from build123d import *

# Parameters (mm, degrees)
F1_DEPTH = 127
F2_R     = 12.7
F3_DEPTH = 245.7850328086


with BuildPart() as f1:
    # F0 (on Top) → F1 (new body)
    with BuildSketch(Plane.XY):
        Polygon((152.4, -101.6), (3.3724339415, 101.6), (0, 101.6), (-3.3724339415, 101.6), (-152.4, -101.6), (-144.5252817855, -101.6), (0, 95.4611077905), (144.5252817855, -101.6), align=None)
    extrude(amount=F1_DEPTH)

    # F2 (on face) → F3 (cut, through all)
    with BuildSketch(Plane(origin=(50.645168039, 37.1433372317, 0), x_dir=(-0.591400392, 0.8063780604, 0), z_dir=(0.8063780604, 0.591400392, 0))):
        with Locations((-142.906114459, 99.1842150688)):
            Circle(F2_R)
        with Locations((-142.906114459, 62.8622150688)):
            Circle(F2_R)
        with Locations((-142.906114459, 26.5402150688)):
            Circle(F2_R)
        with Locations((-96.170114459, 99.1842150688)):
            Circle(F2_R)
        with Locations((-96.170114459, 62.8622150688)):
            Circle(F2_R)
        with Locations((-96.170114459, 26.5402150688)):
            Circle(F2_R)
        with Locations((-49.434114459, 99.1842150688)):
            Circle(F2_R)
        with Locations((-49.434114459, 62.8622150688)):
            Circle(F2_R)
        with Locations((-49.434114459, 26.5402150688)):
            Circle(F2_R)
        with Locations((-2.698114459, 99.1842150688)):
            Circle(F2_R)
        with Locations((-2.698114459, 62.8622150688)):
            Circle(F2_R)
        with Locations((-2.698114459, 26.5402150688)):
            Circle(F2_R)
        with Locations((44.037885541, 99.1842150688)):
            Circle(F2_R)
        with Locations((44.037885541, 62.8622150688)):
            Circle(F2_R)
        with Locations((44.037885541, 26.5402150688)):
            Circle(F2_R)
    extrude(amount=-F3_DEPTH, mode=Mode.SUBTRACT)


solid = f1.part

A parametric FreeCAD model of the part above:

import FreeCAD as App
import Part
import Sketcher

V = App.Vector
Q = App.Units.Quantity

doc = App.newDocument("Part")
body = doc.addObject("PartDesign::Body", "Body")

# Sketch on XY plane
sketch1 = body.newObject("Sketcher::SketchObject", "Sketch")
sketch1.AttachmentSupport = (doc.getObject("XY_Plane"), [""])
sketch1.MapMode = "FlatFace"
sketch1.addGeometry(Part.LineSegment(V(152, -102, 0), V(3, 102, 0)), False)
sketch1.addGeometry(Part.LineSegment(V(3, 102, 0), V(-3, 102, 0)), False)
sketch1.addGeometry(Part.LineSegment(V(-3, 102, 0), V(-152, -102, 0)), False)
sketch1.addGeometry(Part.LineSegment(V(-152, -102, 0), V(-145, -102, 0)), False)
sketch1.addGeometry(Part.LineSegment(V(-145, -102, 0), V(0, 95, 0)), False)
sketch1.addGeometry(Part.LineSegment(V(0, 95, 0), V(145, -102, 0)), False)
sketch1.addGeometry(Part.LineSegment(V(145, -102, 0), V(152, -102, 0)), False)
sketch1.addConstraint(Sketcher.Constraint("Coincident", 0, 2, 1, 1))
sketch1.addConstraint(Sketcher.Constraint("Coincident", 1, 2, 2, 1))
sketch1.addConstraint(Sketcher.Constraint("Coincident", 2, 2, 3, 1))
sketch1.addConstraint(Sketcher.Constraint("Coincident", 3, 2, 4, 1))
sketch1.addConstraint(Sketcher.Constraint("Coincident", 4, 2, 5, 1))
sketch1.addConstraint(Sketcher.Constraint("Coincident", 5, 2, 6, 1))
sketch1.addConstraint(Sketcher.Constraint("Coincident", 6, 2, 0, 1))
sketch1.addConstraint(Sketcher.Constraint("Horizontal", 1))
sketch1.addConstraint(Sketcher.Constraint("Horizontal", 3))
sketch1.addConstraint(Sketcher.Constraint("Horizontal", 6))
sketch1.addConstraint(Sketcher.Constraint("Symmetric", 3, 2, 5, 2, -2))
sketch1.addConstraint(Sketcher.Constraint("PointOnObject", 4, 2, -2))
sketch1.addConstraint(Sketcher.Constraint("Parallel", 2, 4))
sketch1.addConstraint(Sketcher.Constraint("Parallel", 0, 5))
sketch1.addConstraint(Sketcher.Constraint("Equal", 3, 6))
sketch1.addConstraint(Sketcher.Constraint("DistanceY", -1, 1, 0, 2, Q("4 in")))
sketch1.addConstraint(Sketcher.Constraint("DistanceX", 2, 2, -1, 1, Q("6 in")))
sketch1.addConstraint(Sketcher.Constraint("DistanceY", 2, 2, -1, 1, Q("4 in")))
sketch1.addConstraint(Sketcher.Constraint("DistanceX", 3, 1, 3, 2, Q("7.874718 mm")))
sketch1.addConstraint(Sketcher.Constraint("DistanceX", 1, 2, 1, 1, Q("6.744868 mm")))
pad1 = body.newObject("PartDesign::Pad", "Pad")
pad1.Profile = sketch1
pad1.Length = Q("5 in")

# Sketch on an angled plane
sketch2 = body.newObject("Sketcher::SketchObject", "Sketch001")
sketch2.Placement = App.Placement(V(50.645168, 37.143337, 0), App.Rotation(V(-0.591400392, 0.80637806, 0), V(0, 0, 0.999999999), V(0.80637806, 0.591400392, 0), "ZXY"))
sketch2.addGeometry(Part.Circle(V(-143, 99, 0), V(0, 0, 1), 13), False)
sketch2.addGeometry(Part.Circle(V(-143, 63, 0), V(0, 0, 1), 13), False)
sketch2.addGeometry(Part.Circle(V(-143, 27, 0), V(0, 0, 1), 13), False)
sketch2.addGeometry(Part.Circle(V(-96, 99, 0), V(0, 0, 1), 13), False)
sketch2.addGeometry(Part.Circle(V(-96, 63, 0), V(0, 0, 1), 13), False)
sketch2.addGeometry(Part.Circle(V(-96, 27, 0), V(0, 0, 1), 13), False)
sketch2.addGeometry(Part.Circle(V(-49, 99, 0), V(0, 0, 1), 13), False)
sketch2.addGeometry(Part.Circle(V(-49, 63, 0), V(0, 0, 1), 13), False)
sketch2.addGeometry(Part.Circle(V(-49, 27, 0), V(0, 0, 1), 13), False)
sketch2.addGeometry(Part.Circle(V(-3, 99, 0), V(0, 0, 1), 13), False)
sketch2.addGeometry(Part.Circle(V(-3, 63, 0), V(0, 0, 1), 13), False)
sketch2.addGeometry(Part.Circle(V(-3, 27, 0), V(0, 0, 1), 13), False)
sketch2.addGeometry(Part.Circle(V(44, 99, 0), V(0, 0, 1), 13), False)
sketch2.addGeometry(Part.Circle(V(44, 63, 0), V(0, 0, 1), 13), False)
sketch2.addGeometry(Part.Circle(V(44, 27, 0), V(0, 0, 1), 13), False)
sketch2.addConstraint(Sketcher.Constraint("Equal", 0, 1))
sketch2.addConstraint(Sketcher.Constraint("Equal", 1, 2))
sketch2.addConstraint(Sketcher.Constraint("Equal", 2, 3))
sketch2.addConstraint(Sketcher.Constraint("Equal", 3, 4))
sketch2.addConstraint(Sketcher.Constraint("Equal", 4, 5))
sketch2.addConstraint(Sketcher.Constraint("Equal", 5, 6))
sketch2.addConstraint(Sketcher.Constraint("Equal", 6, 7))
sketch2.addConstraint(Sketcher.Constraint("Equal", 7, 8))
sketch2.addConstraint(Sketcher.Constraint("Equal", 8, 9))
sketch2.addConstraint(Sketcher.Constraint("Equal", 9, 10))
sketch2.addConstraint(Sketcher.Constraint("Equal", 10, 11))
sketch2.addConstraint(Sketcher.Constraint("Equal", 11, 12))
sketch2.addConstraint(Sketcher.Constraint("Equal", 12, 13))
sketch2.addConstraint(Sketcher.Constraint("Equal", 13, 14))
sketch2.addConstraint(Sketcher.Constraint("Horizontal", 0, 3, 3, 3))
sketch2.addConstraint(Sketcher.Constraint("Horizontal", 1, 3, 4, 3))
sketch2.addConstraint(Sketcher.Constraint("Horizontal", 2, 3, 5, 3))
sketch2.addConstraint(Sketcher.Constraint("Horizontal", 3, 3, 6, 3))
sketch2.addConstraint(Sketcher.Constraint("Horizontal", 4, 3, 7, 3))
sketch2.addConstraint(Sketcher.Constraint("Horizontal", 5, 3, 8, 3))
sketch2.addConstraint(Sketcher.Constraint("Horizontal", 6, 3, 9, 3))
sketch2.addConstraint(Sketcher.Constraint("Horizontal", 7, 3, 10, 3))
sketch2.addConstraint(Sketcher.Constraint("Horizontal", 8, 3, 11, 3))
sketch2.addConstraint(Sketcher.Constraint("Horizontal", 9, 3, 12, 3))
sketch2.addConstraint(Sketcher.Constraint("Horizontal", 10, 3, 13, 3))
sketch2.addConstraint(Sketcher.Constraint("Horizontal", 11, 3, 14, 3))
sketch2.addConstraint(Sketcher.Constraint("Vertical", 0, 3, 1, 3))
sketch2.addConstraint(Sketcher.Constraint("Vertical", 1, 3, 2, 3))
sketch2.addConstraint(Sketcher.Constraint("Vertical", 3, 3, 4, 3))
sketch2.addConstraint(Sketcher.Constraint("Vertical", 4, 3, 5, 3))
sketch2.addConstraint(Sketcher.Constraint("Vertical", 6, 3, 7, 3))
sketch2.addConstraint(Sketcher.Constraint("Vertical", 7, 3, 8, 3))
sketch2.addConstraint(Sketcher.Constraint("Vertical", 9, 3, 10, 3))
sketch2.addConstraint(Sketcher.Constraint("Vertical", 10, 3, 11, 3))
sketch2.addConstraint(Sketcher.Constraint("Vertical", 12, 3, 13, 3))
sketch2.addConstraint(Sketcher.Constraint("Vertical", 13, 3, 14, 3))
sketch2.addConstraint(Sketcher.Constraint("Diameter", 0, Q("1 in")))
sketch2.addConstraint(Sketcher.Constraint("DistanceY", 1, 3, 0, 3, Q("1.43 in")))
sketch2.addConstraint(Sketcher.Constraint("DistanceY", 2, 3, 1, 3, Q("1.43 in")))
sketch2.addConstraint(Sketcher.Constraint("DistanceX", 0, 3, 3, 3, Q("1.84 in")))
sketch2.addConstraint(Sketcher.Constraint("DistanceX", 3, 3, 6, 3, Q("1.84 in")))
sketch2.addConstraint(Sketcher.Constraint("DistanceX", 6, 3, 9, 3, Q("1.84 in")))
sketch2.addConstraint(Sketcher.Constraint("DistanceX", 9, 3, 12, 3, Q("1.84 in")))
sketch2.addConstraint(Sketcher.Constraint("DistanceX", 0, 3, -1, 1, Q("142.906114 mm")))
sketch2.addConstraint(Sketcher.Constraint("DistanceY", -1, 1, 0, 3, Q("99.184215 mm")))
pocket1 = body.newObject("PartDesign::Pocket", "Pocket")
pocket1.Profile = sketch2
pocket1.Type = "ThroughAll"

doc.recompute()
